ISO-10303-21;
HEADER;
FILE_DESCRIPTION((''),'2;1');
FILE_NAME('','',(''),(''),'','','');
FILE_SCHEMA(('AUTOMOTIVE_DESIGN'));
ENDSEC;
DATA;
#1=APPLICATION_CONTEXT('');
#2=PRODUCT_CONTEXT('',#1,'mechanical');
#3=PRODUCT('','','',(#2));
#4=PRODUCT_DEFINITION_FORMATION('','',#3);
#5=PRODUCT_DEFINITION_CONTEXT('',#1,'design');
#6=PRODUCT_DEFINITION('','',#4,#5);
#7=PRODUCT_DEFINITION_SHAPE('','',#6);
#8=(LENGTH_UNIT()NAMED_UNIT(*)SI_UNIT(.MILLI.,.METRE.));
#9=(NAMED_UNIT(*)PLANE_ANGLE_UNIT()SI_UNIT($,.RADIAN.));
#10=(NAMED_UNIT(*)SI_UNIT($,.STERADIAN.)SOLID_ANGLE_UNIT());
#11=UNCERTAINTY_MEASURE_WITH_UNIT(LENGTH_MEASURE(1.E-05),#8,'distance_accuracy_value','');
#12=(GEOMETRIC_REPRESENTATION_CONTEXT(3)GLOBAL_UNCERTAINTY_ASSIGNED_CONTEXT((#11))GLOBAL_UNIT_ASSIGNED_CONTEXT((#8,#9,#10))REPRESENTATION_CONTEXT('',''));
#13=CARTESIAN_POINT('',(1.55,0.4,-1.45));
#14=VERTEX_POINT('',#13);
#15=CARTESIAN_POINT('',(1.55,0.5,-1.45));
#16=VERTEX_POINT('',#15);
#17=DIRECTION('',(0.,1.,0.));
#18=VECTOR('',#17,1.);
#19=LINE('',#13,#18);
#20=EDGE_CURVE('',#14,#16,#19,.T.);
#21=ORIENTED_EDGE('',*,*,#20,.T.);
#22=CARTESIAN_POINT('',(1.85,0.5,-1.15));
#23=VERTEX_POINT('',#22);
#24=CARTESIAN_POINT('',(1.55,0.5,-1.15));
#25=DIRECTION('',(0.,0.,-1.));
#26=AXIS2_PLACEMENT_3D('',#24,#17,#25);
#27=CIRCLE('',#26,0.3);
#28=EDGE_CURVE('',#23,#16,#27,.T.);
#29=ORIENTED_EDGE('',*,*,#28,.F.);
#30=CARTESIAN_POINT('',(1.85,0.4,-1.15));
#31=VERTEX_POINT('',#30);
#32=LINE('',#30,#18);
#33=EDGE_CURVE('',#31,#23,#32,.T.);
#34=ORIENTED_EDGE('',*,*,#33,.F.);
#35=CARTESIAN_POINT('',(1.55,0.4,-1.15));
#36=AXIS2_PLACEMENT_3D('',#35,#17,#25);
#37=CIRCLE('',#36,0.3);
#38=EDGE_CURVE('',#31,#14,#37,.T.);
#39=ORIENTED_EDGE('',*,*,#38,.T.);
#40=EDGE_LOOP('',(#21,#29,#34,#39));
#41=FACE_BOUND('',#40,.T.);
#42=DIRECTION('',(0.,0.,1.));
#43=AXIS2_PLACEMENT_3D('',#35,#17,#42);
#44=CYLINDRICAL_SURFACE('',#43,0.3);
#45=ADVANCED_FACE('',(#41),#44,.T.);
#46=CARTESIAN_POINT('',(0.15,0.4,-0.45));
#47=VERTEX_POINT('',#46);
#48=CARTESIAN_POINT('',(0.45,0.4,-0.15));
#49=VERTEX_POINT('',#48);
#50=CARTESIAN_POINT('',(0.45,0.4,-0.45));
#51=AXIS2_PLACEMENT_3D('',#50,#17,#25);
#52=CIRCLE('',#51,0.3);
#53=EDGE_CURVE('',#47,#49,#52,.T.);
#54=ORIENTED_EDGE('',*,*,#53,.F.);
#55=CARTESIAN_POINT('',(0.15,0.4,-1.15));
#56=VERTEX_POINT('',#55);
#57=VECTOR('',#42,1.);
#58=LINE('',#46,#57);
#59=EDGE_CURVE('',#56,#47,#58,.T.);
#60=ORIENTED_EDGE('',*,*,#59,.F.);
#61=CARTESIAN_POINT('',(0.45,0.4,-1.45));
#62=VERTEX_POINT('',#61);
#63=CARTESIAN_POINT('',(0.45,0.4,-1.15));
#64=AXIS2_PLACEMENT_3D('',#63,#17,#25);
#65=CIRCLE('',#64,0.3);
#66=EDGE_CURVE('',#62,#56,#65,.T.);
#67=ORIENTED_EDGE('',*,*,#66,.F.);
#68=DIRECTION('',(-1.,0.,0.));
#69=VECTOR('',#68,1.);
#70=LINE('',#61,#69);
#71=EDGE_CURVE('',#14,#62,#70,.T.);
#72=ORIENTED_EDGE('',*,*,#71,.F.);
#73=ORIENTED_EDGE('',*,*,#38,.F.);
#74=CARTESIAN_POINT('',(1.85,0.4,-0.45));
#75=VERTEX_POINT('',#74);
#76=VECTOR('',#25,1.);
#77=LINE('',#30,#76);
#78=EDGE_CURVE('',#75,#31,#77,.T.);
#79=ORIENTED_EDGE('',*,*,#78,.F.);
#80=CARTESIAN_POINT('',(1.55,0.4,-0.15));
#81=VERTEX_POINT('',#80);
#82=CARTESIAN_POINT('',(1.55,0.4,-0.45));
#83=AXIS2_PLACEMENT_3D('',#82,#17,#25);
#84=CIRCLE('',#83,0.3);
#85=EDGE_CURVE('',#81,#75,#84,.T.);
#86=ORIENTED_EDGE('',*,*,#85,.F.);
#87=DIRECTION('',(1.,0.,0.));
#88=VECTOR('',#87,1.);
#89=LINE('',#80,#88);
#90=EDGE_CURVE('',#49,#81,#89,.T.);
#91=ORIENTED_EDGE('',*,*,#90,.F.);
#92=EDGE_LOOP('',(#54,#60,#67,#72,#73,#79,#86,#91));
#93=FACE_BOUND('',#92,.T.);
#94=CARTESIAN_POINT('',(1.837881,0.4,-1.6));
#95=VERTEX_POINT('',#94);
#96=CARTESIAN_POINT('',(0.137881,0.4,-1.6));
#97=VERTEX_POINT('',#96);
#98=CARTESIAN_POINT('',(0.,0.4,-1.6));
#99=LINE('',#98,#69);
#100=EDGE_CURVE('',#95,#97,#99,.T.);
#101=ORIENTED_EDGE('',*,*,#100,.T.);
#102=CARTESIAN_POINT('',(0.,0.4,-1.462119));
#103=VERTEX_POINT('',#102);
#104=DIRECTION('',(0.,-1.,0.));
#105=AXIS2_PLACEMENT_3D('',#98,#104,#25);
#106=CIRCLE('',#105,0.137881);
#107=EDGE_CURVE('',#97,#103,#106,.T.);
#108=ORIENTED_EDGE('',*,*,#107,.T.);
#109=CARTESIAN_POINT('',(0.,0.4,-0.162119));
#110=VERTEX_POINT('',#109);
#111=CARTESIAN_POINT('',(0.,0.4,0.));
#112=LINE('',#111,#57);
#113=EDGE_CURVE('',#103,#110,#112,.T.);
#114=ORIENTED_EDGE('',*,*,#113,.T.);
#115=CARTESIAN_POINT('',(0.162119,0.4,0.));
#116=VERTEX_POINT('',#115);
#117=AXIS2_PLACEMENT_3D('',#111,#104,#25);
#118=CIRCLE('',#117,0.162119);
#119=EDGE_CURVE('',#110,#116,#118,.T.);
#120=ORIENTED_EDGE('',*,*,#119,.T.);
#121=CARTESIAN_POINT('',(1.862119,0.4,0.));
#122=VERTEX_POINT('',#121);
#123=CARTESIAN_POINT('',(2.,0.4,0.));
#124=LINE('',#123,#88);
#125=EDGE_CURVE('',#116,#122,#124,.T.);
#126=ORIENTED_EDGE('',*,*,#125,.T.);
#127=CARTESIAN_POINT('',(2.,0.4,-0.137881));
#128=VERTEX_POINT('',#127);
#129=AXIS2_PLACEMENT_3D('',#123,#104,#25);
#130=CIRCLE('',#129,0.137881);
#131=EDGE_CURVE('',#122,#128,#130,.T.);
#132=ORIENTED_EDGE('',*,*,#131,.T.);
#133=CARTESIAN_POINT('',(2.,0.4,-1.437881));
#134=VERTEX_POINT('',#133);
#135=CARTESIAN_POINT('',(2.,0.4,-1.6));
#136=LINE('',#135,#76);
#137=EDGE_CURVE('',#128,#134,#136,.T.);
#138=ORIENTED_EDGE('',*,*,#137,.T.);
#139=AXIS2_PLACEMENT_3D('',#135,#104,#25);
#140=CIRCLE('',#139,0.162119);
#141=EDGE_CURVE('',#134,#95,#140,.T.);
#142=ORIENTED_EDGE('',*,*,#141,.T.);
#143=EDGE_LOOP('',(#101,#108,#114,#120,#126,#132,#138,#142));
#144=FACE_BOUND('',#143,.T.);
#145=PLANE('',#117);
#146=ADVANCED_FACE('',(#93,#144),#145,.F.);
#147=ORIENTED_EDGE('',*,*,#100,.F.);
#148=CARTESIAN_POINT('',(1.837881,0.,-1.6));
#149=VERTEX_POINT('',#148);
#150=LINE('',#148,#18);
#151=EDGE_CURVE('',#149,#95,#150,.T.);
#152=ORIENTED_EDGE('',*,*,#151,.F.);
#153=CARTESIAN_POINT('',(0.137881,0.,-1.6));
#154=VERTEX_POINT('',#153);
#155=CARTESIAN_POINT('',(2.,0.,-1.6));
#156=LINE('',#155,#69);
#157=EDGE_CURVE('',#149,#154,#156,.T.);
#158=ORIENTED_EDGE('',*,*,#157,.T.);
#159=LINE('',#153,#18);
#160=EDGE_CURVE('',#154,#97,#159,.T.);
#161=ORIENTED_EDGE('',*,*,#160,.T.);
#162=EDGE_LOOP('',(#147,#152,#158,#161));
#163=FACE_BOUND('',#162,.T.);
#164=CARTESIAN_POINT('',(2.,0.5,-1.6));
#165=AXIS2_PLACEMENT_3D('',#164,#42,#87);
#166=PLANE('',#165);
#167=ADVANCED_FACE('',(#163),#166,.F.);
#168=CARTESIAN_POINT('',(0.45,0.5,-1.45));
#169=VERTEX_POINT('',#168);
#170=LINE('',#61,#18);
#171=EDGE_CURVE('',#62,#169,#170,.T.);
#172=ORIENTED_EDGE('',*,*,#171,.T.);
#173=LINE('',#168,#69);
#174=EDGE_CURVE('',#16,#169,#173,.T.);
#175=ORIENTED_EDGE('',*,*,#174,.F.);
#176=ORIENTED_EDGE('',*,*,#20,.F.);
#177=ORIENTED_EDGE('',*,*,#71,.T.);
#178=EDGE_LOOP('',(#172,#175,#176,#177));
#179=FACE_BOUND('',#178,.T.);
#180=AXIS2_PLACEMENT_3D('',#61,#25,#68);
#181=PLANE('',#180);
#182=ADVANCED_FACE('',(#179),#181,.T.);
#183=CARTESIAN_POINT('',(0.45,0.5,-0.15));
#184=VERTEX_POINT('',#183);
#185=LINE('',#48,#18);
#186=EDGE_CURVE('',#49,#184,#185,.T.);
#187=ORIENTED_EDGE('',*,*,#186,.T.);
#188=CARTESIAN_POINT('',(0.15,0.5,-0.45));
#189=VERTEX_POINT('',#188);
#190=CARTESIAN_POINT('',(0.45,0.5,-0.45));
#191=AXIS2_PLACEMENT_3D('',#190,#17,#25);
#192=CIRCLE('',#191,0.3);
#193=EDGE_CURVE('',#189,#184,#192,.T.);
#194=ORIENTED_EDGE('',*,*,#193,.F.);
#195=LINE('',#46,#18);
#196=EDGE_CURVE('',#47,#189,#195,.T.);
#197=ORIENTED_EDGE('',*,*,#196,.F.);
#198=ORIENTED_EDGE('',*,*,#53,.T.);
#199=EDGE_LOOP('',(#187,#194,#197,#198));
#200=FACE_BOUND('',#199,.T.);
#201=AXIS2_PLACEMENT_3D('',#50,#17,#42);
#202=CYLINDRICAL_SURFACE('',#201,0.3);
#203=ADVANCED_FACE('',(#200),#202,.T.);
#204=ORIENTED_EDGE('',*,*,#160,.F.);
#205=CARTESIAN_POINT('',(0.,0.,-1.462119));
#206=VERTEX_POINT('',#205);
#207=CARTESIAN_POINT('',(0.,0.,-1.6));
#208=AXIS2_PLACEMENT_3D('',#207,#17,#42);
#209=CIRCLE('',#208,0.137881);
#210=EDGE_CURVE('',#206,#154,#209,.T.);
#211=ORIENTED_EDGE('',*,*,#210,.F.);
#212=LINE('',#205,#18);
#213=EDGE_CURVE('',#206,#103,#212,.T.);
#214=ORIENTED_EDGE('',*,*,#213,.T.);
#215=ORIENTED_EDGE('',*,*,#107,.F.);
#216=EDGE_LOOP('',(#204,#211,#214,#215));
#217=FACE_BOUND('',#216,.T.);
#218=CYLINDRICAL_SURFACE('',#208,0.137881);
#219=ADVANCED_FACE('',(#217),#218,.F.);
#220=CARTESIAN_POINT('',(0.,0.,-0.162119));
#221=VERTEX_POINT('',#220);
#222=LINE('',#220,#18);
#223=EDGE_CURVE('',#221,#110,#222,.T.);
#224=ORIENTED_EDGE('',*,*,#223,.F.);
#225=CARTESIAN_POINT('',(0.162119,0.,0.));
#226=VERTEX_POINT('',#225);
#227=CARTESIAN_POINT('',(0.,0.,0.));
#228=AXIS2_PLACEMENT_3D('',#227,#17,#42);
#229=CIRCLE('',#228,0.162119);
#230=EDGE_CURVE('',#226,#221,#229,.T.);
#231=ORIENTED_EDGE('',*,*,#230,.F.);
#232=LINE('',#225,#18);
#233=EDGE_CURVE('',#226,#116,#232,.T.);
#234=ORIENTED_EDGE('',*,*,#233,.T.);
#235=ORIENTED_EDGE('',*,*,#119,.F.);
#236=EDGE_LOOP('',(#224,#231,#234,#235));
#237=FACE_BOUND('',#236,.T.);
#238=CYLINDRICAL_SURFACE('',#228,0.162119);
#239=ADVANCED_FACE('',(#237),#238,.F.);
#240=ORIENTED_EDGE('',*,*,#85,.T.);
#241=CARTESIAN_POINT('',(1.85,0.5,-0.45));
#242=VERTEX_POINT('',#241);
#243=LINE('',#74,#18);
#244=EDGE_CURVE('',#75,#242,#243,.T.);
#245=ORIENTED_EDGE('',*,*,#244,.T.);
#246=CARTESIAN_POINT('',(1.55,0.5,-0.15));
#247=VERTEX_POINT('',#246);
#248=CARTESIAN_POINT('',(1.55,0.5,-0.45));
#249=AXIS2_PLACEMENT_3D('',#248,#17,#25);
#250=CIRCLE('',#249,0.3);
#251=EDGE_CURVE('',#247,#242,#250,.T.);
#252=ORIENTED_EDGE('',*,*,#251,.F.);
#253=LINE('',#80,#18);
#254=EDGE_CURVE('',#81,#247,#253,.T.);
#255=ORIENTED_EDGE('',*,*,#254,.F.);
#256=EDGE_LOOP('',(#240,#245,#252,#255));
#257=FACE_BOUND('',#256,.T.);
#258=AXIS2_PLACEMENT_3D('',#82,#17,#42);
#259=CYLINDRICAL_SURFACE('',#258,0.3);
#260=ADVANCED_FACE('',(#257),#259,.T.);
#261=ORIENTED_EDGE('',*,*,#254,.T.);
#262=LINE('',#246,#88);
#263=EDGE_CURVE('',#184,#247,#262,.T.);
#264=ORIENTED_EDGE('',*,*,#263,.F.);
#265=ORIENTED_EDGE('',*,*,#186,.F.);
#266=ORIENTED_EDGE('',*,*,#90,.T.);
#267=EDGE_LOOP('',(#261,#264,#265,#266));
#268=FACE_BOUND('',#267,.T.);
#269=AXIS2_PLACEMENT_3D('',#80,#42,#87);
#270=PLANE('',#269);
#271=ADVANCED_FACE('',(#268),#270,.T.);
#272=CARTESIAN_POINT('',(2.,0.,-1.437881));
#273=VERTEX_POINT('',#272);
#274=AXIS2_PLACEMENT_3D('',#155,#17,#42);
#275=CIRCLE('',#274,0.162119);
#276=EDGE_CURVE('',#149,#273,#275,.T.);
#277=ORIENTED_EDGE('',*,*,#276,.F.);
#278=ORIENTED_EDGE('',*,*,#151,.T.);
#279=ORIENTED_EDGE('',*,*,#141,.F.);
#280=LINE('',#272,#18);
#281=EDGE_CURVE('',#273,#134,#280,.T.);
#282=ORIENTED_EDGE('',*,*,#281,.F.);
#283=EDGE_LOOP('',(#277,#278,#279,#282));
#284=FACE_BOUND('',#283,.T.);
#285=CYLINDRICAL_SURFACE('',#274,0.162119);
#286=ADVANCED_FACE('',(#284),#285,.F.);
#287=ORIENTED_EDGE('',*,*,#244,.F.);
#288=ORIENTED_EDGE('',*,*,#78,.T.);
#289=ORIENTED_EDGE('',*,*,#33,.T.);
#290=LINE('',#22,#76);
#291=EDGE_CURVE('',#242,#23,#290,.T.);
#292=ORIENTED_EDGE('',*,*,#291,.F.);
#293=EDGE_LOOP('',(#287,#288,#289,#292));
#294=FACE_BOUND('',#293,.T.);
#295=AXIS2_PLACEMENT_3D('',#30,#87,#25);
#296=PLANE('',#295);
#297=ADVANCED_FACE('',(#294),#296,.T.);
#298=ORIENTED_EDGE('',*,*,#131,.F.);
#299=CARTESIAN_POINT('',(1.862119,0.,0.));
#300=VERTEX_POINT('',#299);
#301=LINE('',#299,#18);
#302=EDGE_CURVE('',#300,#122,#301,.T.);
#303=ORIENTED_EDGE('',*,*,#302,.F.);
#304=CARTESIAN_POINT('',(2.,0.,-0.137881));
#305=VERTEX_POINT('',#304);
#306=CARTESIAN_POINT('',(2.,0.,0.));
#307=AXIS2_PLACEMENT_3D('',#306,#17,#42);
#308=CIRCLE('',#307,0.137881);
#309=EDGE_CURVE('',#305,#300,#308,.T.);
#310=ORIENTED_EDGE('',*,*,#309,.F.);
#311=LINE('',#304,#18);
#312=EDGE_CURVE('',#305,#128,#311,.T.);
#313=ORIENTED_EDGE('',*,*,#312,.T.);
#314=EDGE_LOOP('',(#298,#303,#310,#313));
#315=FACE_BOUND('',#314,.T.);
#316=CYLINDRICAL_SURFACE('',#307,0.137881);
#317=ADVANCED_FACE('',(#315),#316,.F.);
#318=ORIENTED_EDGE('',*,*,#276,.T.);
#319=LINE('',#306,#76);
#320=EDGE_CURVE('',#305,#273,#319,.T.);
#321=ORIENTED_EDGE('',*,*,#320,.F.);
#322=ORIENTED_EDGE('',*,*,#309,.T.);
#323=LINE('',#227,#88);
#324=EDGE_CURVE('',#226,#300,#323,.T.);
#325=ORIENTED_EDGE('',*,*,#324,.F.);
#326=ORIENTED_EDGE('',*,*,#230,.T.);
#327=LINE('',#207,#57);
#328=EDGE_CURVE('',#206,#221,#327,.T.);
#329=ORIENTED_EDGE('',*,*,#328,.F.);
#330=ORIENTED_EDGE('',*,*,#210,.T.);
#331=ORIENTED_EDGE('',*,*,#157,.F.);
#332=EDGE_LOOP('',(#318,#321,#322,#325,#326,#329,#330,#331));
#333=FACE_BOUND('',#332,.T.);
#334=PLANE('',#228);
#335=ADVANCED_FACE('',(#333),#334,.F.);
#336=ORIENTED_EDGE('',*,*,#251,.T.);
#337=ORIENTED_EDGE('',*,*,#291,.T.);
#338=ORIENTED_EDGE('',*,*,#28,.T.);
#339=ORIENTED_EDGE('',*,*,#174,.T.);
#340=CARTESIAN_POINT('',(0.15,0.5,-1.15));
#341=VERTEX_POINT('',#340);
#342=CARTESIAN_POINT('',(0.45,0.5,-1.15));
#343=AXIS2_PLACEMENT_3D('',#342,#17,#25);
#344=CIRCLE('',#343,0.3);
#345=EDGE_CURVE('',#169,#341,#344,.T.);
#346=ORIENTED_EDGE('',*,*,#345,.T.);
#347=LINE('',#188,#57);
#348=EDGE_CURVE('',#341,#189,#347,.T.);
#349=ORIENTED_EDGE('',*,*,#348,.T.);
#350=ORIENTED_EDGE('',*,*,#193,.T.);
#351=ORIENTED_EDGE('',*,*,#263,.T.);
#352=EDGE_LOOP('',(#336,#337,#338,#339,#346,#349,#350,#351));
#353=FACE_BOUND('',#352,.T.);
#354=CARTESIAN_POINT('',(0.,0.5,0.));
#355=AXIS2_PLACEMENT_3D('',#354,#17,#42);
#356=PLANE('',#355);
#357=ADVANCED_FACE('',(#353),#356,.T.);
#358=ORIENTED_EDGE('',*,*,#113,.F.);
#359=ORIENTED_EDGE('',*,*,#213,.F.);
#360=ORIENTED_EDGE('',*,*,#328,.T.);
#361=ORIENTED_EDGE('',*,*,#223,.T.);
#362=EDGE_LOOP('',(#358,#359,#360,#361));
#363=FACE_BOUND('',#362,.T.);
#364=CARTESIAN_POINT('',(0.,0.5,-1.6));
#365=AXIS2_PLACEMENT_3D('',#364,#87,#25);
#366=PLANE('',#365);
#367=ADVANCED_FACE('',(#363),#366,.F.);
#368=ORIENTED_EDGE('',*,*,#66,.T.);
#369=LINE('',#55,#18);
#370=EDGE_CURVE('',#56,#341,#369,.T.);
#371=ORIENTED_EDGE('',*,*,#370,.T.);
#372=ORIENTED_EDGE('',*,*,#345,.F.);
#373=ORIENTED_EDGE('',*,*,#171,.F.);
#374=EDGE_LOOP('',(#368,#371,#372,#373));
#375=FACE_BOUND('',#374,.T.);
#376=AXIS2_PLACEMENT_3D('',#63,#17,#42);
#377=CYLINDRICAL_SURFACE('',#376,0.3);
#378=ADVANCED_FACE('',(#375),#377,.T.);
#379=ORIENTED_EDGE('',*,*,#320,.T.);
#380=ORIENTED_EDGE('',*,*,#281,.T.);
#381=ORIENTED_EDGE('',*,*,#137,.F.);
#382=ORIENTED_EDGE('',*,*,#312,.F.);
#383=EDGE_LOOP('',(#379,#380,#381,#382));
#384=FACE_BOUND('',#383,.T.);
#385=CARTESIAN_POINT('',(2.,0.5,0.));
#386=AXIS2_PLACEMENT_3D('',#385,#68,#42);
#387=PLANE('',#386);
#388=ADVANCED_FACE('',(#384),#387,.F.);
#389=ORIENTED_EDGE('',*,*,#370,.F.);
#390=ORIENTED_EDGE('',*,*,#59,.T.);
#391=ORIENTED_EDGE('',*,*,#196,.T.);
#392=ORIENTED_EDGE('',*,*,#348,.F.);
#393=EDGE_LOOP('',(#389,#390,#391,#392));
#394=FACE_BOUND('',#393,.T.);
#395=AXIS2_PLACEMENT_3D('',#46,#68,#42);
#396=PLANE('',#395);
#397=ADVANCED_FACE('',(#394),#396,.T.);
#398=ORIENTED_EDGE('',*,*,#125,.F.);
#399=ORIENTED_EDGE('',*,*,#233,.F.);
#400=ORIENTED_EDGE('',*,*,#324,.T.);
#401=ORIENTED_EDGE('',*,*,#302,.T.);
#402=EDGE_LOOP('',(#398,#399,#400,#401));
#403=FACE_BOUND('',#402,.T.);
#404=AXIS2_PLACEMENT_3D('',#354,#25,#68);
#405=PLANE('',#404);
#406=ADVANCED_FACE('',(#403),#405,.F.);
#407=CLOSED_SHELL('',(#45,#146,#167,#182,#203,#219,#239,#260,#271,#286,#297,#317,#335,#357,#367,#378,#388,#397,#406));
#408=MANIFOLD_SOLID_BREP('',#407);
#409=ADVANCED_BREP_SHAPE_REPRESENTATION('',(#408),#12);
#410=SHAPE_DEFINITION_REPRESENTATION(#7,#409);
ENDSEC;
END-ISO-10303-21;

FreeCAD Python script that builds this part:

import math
import FreeCAD as App
import Part
import Sketcher
Q = App.Units.Quantity

doc = App.newDocument("Part")
body = doc.addObject("PartDesign::Body", "Body")

# Sketch on XZ plane
sketch1 = body.newObject("Sketcher::SketchObject", "Sketch")
sketch1.AttachmentSupport = (doc.getObject("XZ_Plane"), [""])
sketch1.MapMode = "FlatFace"
sketch1.addGeometry(Part.LineSegment(App.Vector(0, -1.6, 0), App.Vector(0, 0, 0)), False)
sketch1.addGeometry(Part.LineSegment(App.Vector(0, 0, 0), App.Vector(2, 0, 0)), False)
sketch1.addGeometry(Part.LineSegment(App.Vector(2, 0, 0), App.Vector(2, -1.6, 0)), False)
sketch1.addGeometry(Part.LineSegment(App.Vector(2, -1.6, 0), App.Vector(0, -1.6, 0)), False)
sketch1.addConstraint(Sketcher.Constraint("Coincident", 0, 2, 1, 1))
sketch1.addConstraint(Sketcher.Constraint("Coincident", 1, 2, 2, 1))
sketch1.addConstraint(Sketcher.Constraint("Coincident", 2, 2, 3, 1))
sketch1.addConstraint(Sketcher.Constraint("Coincident", 3, 2, 0, 1))
sketch1.addConstraint(Sketcher.Constraint("Vertical", 0))
sketch1.addConstraint(Sketcher.Constraint("Horizontal", 1))
sketch1.addConstraint(Sketcher.Constraint("Vertical", 2))
sketch1.addConstraint(Sketcher.Constraint("Horizontal", 3))
sketch1.addConstraint(Sketcher.Constraint("Coincident", 0, 2, -1, 1))
sketch1.addConstraint(Sketcher.Constraint("DistanceX", 1, 1, 1, 2, Q("2 mm")))
sketch1.addConstraint(Sketcher.Constraint("DistanceY", 0, 1, 0, 2, Q("1.6 mm")))
pad1 = body.newObject("PartDesign::Pad", "Pad")
pad1.Profile = sketch1
pad1.Length = 0.5
pad1.Reversed = True

# Sketch on XZ plane
sketch2 = body.newObject("Sketcher::SketchObject", "Sketch001")
sketch2.AttachmentSupport = (doc.getObject("XZ_Plane"), [""])
sketch2.MapMode = "FlatFace"
sketch2.AttachmentOffset = App.Placement(App.Vector(0, 0, -0.5), App.Rotation())
sketch2.addGeometry(Part.LineSegment(App.Vector(0, -1.6, 0), App.Vector(0, 0, 0)), False)
sketch2.addGeometry(Part.LineSegment(App.Vector(0, 0, 0), App.Vector(2, 0, 0)), False)
sketch2.addGeometry(Part.LineSegment(App.Vector(2, 0, 0), App.Vector(2, -1.6, 0)), False)
sketch2.addGeometry(Part.LineSegment(App.Vector(2, -1.6, 0), App.Vector(0, -1.6, 0)), False)
sketch2.addGeometry(Part.ArcOfCircle(Part.Circle(App.Vector(0.45, -1.15, 0), App.Vector(0, 0, 1), 0.3), math.radians(-180), math.radians(-90)), False)
sketch2.addGeometry(Part.LineSegment(App.Vector(0.45, -1.45, 0), App.Vector(1.55, -1.45, 0)), False)
sketch2.addGeometry(Part.ArcOfCircle(Part.Circle(App.Vector(1.55, -1.15, 0), App.Vector(0, 0, 1), 0.3), math.radians(-90), math.radians(0)), False)
sketch2.addGeometry(Part.LineSegment(App.Vector(1.85, -1.15, 0), App.Vector(1.85, -0.45, 0)), False)
sketch2.addGeometry(Part.ArcOfCircle(Part.Circle(App.Vector(1.55, -0.45, 0), App.Vector(0, 0, 1), 0.3), math.radians(0), math.radians(90)), False)
sketch2.addGeometry(Part.LineSegment(App.Vector(1.55, -0.15, 0), App.Vector(0.45, -0.15, 0)), False)
sketch2.addGeometry(Part.ArcOfCircle(Part.Circle(App.Vector(0.45, -0.45, 0), App.Vector(0, 0, 1), 0.3), math.radians(90), math.radians(180)), False)
sketch2.addGeometry(Part.LineSegment(App.Vector(0.15, -0.45, 0), App.Vector(0.15, -1.15, 0)), False)
sketch2.addConstraint(Sketcher.Constraint("Coincident", 0, 2, 1, 1))
sketch2.addConstraint(Sketcher.Constraint("Coincident", 1, 2, 2, 1))
sketch2.addConstraint(Sketcher.Constraint("Coincident", 2, 2, 3, 1))
sketch2.addConstraint(Sketcher.Constraint("Coincident", 3, 2, 0, 1))
sketch2.addConstraint(Sketcher.Constraint("Tangent", 4, 2, 5, 1))
sketch2.addConstraint(Sketcher.Constraint("Tangent", 5, 2, 6, 1))
sketch2.addConstraint(Sketcher.Constraint("Tangent", 6, 2, 7, 1))
sketch2.addConstraint(Sketcher.Constraint("Tangent", 7, 2, 8, 1))
sketch2.addConstraint(Sketcher.Constraint("Tangent", 8, 2, 9, 1))
sketch2.addConstraint(Sketcher.Constraint("Tangent", 9, 2, 10, 1))
sketch2.addConstraint(Sketcher.Constraint("Tangent", 10, 2, 11, 1))
sketch2.addConstraint(Sketcher.Constraint("Tangent", 11, 2, 4, 1))
sketch2.addConstraint(Sketcher.Constraint("Vertical", 0))
sketch2.addConstraint(Sketcher.Constraint("Horizontal", 1))
sketch2.addConstraint(Sketcher.Constraint("Vertical", 2))
sketch2.addConstraint(Sketcher.Constraint("Horizontal", 3))
sketch2.addConstraint(Sketcher.Constraint("Horizontal", 5))
sketch2.addConstraint(Sketcher.Constraint("Vertical", 7))
sketch2.addConstraint(Sketcher.Constraint("Horizontal", 9))
sketch2.addConstraint(Sketcher.Constraint("Vertical", 11))
sketch2.addConstraint(Sketcher.Constraint("Coincident", 0, 2, -1, 1))
sketch2.addConstraint(Sketcher.Constraint("Equal", 4, 6))
sketch2.addConstraint(Sketcher.Constraint("Equal", 6, 8))
sketch2.addConstraint(Sketcher.Constraint("Equal", 8, 10))
sketch2.addConstraint(Sketcher.Constraint("Radius", 4, Q("0.3 mm")))
sketch2.addConstraint(Sketcher.Constraint("DistanceX", 1, 1, 1, 2, Q("2 mm")))
sketch2.addConstraint(Sketcher.Constraint("DistanceX", 5, 1, 5, 2, Q("1.1 mm")))
sketch2.addConstraint(Sketcher.Constraint("DistanceY", 0, 1, 0, 2, Q("1.6 mm")))
sketch2.addConstraint(Sketcher.Constraint("DistanceY", 7, 1, 7, 2, Q("0.7 mm")))
sketch2.addConstraint(Sketcher.Constraint("DistanceX", -1, 1, 4, 3, Q("0.45 mm")))
sketch2.addConstraint(Sketcher.Constraint("DistanceY", 4, 3, -1, 1, Q("1.15 mm")))
pocket1 = body.newObject("PartDesign::Pocket", "Pocket")
pocket1.Profile = sketch2
pocket1.Length = 0.1
pocket1.Reversed = True

# Sketch on XZ plane
sketch3 = body.newObject("Sketcher::SketchObject", "Sketch002")
sketch3.AttachmentSupport = (doc.getObject("XZ_Plane"), [""])
sketch3.MapMode = "FlatFace"
sketch3.AttachmentOffset = App.Placement(App.Vector(0, 0, -0.5), App.Rotation())
sketch3.addGeometry(Part.Circle(App.Vector(0, -1.6, 0), App.Vector(0, 0, 1), 0.14), False)
sketch3.addGeometry(Part.Circle(App.Vector(2, -1.6, 0), App.Vector(0, 0, 1), 0.16), False)
sketch3.addGeometry(Part.Circle(App.Vector(2, 0, 0), App.Vector(0, 0, 1), 0.14), False)
sketch3.addGeometry(Part.Circle(App.Vector(0, 0, 0), App.Vector(0, 0, 1), 0.16), False)
sketch3.addConstraint(Sketcher.Constraint("Coincident", 3, 3, -1, 1))
sketch3.addConstraint(Sketcher.Constraint("Equal", 0, 2))
sketch3.addConstraint(Sketcher.Constraint("Equal", 1, 3))
sketch3.addConstraint(Sketcher.Constraint("PointOnObject", 0, 3, -2))
sketch3.addConstraint(Sketcher.Constraint("PointOnObject", 2, 3, -1))
sketch3.addConstraint(Sketcher.Constraint("Horizontal", 0, 3, 1, 3))
sketch3.addConstraint(Sketcher.Constraint("Vertical", 1, 3, 2, 3))
sketch3.addConstraint(Sketcher.Constraint("DistanceX", -1, 1, 1, 3, Q("2 mm")))
sketch3.addConstraint(Sketcher.Constraint("DistanceY", 0, 3, -1, 1, Q("1.6 mm")))
sketch3.addConstraint(Sketcher.Constraint("Diameter", 0, Q("0.275762 mm")))
sketch3.addConstraint(Sketcher.Constraint("Diameter", 1, Q("0.324238 mm")))
pocket2 = body.newObject("PartDesign::Pocket", "Pocket001")
pocket2.Profile = sketch3
pocket2.Length = 0.5
pocket2.Reversed = True

doc.recompute()
